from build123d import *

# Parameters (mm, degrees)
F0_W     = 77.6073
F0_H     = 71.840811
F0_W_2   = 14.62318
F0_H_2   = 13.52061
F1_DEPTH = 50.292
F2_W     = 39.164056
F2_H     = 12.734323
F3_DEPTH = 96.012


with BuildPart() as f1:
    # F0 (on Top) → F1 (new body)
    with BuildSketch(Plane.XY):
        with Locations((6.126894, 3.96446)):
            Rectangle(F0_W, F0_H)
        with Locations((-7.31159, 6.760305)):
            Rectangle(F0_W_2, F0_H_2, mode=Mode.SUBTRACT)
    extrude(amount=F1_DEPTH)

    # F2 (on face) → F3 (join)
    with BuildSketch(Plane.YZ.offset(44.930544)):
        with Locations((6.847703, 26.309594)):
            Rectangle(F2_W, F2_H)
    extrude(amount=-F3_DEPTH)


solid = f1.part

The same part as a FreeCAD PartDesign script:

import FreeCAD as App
import Part
import Sketcher
Q = App.Units.Quantity


def add_polygon(sketch, points):
    """Adds a closed chain of lines whose ends are joined by coincident constraints."""
    first, n = sketch.GeometryCount, len(points)
    for a, b in zip(points, points[1:] + points[:1]):
        sketch.addGeometry(Part.LineSegment(App.Vector(*a, 0), App.Vector(*b, 0)), False)
    for i in range(n):
        sketch.addConstraint(Sketcher.Constraint("Coincident", first + i, 2, first + (i + 1) % n, 1))

doc = App.newDocument("Part")
body = doc.addObject("PartDesign::Body", "Body")

# Sketch on XY plane
sketch1 = body.newObject("Sketcher::SketchObject", "Sketch")
sketch1.AttachmentSupport = (doc.getObject("XY_Plane"), [""])
sketch1.MapMode = "FlatFace"
add_polygon(sketch1, [(-33, 40), (-33, -32), (45, -32), (45, 40)])  # lines 0-3
add_polygon(sketch1, [(0, 0), (-15, 0), (-15, 14), (0, 14)])  # lines 4-7
sketch1.addConstraint([
    Sketcher.Constraint("Vertical", 0),
    Sketcher.Constraint("Horizontal", 1),
    Sketcher.Constraint("Vertical", 2),
    Sketcher.Constraint("Horizontal", 3),
    Sketcher.Constraint("Horizontal", 4),
    Sketcher.Constraint("Vertical", 5),
    Sketcher.Constraint("Horizontal", 6),
    Sketcher.Constraint("Vertical", 7),
    Sketcher.Constraint("Coincident", 7, 2, -1, 1),
    Sketcher.Constraint("DistanceX", 1, 1, 1, 2, 77.6073),
    Sketcher.Constraint("DistanceX", 4, 2, 4, 1, 14.62318),
    Sketcher.Constraint("DistanceY", 0, 2, 0, 1, 71.840811),
    Sketcher.Constraint("DistanceY", 5, 1, 5, 2, 13.52061),
    Sketcher.Constraint("DistanceX", 0, 2, -1, 1, 32.676756),
    Sketcher.Constraint("DistanceY", 0, 2, -1, 1, 31.955945),
])
pad1 = body.newObject("PartDesign::Pad", "Pad")
pad1.Profile = sketch1
pad1.Length = Q("1.98 in")

# Sketch on YZ plane
sketch2 = body.newObject("Sketcher::SketchObject", "Sketch001")
sketch2.AttachmentSupport = (doc.getObject("YZ_Plane"), [""])
sketch2.MapMode = "FlatFace"
sketch2.AttachmentOffset = App.Placement(App.Vector(0, 0, 44.930544), App.Rotation())
add_polygon(sketch2, [(-13, 33), (-13, 20), (26, 20), (26, 33)])  # lines 0-3
sketch2.addConstraint([
    Sketcher.Constraint("Vertical", 0),
    Sketcher.Constraint("Horizontal", 1),
    Sketcher.Constraint("Vertical", 2),
    Sketcher.Constraint("Horizontal", 3),
    Sketcher.Constraint("DistanceX", 1, 1, 1, 2, 39.164056),
    Sketcher.Constraint("DistanceY", 0, 2, 0, 1, 12.734323),
    Sketcher.Constraint("DistanceX", -1, 1, 1, 2, 26.429731),
    Sketcher.Constraint("DistanceY", -1, 1, 0, 2, 19.942432),
])
pad2 = body.newObject("PartDesign::Pad", "Pad001")
pad2.Profile = sketch2
pad2.Length = Q("3.78 in")
pad2.Reversed = True

doc.recompute()
